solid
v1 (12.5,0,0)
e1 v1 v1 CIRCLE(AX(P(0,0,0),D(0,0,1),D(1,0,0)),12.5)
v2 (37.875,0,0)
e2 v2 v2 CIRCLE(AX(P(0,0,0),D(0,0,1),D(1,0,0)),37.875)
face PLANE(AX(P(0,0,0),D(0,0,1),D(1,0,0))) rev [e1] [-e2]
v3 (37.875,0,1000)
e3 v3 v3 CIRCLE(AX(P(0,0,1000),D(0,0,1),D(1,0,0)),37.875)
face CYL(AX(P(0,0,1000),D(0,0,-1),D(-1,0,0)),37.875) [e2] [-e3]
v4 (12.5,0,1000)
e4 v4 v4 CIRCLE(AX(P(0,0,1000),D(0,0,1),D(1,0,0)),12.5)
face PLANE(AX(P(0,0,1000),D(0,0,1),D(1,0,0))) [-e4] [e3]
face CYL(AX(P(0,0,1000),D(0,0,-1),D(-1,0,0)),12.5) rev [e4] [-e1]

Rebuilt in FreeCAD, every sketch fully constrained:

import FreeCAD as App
import Part
import Sketcher

V = App.Vector
Q = App.Units.Quantity

doc = App.newDocument("Part")
body = doc.addObject("PartDesign::Body", "Body")

# Sketch on XY plane
sketch1 = doc.addObject("Sketcher::SketchObject", "Sketch")
body.addObject(sketch1)
sketch1.AttachmentSupport = (doc.XY_Plane, [""])
sketch1.MapMode = "FlatFace"
sketch1.addGeometry([
    Part.Circle(V(0, 0, 0), V(0, 0, 1), 38),
    Part.Circle(V(0, 0, 0), V(0, 0, 1), 12),
], False)
sketch1.addConstraint([
    Sketcher.Constraint("Coincident", 0, 3, -1, 1),
    Sketcher.Constraint("Coincident", 1, 3, -1, 1),
    Sketcher.Constraint("Diameter", 1, Q("25 mm")),
    Sketcher.Constraint("Diameter", 0, Q("75.75 mm")),
])
pad1 = doc.addObject("PartDesign::Pad", "Pad")
body.addObject(pad1)
pad1.Profile = sketch1
pad1.Length = 1000

doc.recompute()
